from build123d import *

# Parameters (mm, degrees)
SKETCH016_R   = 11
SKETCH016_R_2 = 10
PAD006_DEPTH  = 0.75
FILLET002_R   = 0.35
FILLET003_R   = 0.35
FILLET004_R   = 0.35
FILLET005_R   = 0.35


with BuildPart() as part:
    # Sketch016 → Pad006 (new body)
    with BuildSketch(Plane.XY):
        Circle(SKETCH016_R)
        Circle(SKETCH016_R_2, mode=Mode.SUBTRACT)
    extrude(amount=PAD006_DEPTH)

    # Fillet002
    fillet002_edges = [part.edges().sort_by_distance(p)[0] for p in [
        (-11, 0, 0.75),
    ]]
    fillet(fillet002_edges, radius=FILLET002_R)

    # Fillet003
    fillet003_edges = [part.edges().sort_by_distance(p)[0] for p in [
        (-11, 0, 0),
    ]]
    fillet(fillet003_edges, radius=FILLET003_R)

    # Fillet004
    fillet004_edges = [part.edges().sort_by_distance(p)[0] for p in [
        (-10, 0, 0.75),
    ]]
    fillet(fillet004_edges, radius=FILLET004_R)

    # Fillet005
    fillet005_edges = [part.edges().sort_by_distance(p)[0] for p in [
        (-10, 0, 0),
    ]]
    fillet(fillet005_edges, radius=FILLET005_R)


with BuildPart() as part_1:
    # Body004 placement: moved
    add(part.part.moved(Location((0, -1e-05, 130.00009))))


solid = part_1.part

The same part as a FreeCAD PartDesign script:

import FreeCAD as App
import Part
import Sketcher
from FreeCAD import Vector


def edges_at(feature, points):
    """Names of the edges that pass closest to the given points."""
    edges = feature.Shape.Edges
    near = lambda p: min(range(len(edges)), key=lambda i: edges[i].distToShape(Part.Vertex(*p))[0])
    return sorted({f"Edge{near(p) + 1}" for p in points})

doc = App.newDocument("Part")
body = doc.addObject("PartDesign::Body", "Body")

# Sketch on XY plane
sketch1 = doc.addObject("Sketcher::SketchObject", "Sketch")
body.addObject(sketch1)
sketch1.AttachmentSupport = (doc.XY_Plane, [""])
sketch1.MapMode = "FlatFace"
sketch1.addGeometry([
    Part.Circle(Vector(0, 0, 0), Vector(0, 0, 1), 11),
    Part.Circle(Vector(0, 0, 0), Vector(0, 0, 1), 10),
], False)
sketch1.addConstraint([
    Sketcher.Constraint("Coincident", 0, 3, -1, 1),
    Sketcher.Constraint("Coincident", 1, 3, -1, 1),
    Sketcher.Constraint("Diameter", 0, 22.0),
    Sketcher.Constraint("Diameter", 1, 20.0),
])
pad1 = doc.addObject("PartDesign::Pad", "Pad")
body.addObject(pad1)
pad1.Profile = sketch1
pad1.Length = 0.75
doc.recompute()

fillet = doc.addObject("PartDesign::Fillet", "Fillet")
body.addObject(fillet)
fillet.Base = (pad1, edges_at(pad1, [(-11, 0, 0.75)]))
fillet.Radius = 0.35
doc.recompute()

fillet2 = doc.addObject("PartDesign::Fillet", "Fillet001")
body.addObject(fillet2)
fillet2.Base = (fillet, edges_at(fillet, [(-11, 0, 0)]))
fillet2.Radius = 0.35
doc.recompute()

fillet3 = doc.addObject("PartDesign::Fillet", "Fillet002")
body.addObject(fillet3)
fillet3.Base = (fillet2, edges_at(fillet2, [(-10, 0, 0.75)]))
fillet3.Radius = 0.35
doc.recompute()

fillet4 = doc.addObject("PartDesign::Fillet", "Fillet003")
body.addObject(fillet4)
fillet4.Base = (fillet3, edges_at(fillet3, [(-10, 0, 0)]))
fillet4.Radius = 0.35
body2 = doc.addObject("PartDesign::Body", "Body001")
doc.recompute()

body.Placement = App.Placement(Vector(0, -0.00001, 130.00009), App.Rotation(Vector(0, 0, 1), 0))
boolean = doc.addObject("PartDesign::Boolean", "Boolean")
body2.addObject(boolean)
boolean.Type = "Fuse"
boolean.addObjects([body])

doc.recompute()
